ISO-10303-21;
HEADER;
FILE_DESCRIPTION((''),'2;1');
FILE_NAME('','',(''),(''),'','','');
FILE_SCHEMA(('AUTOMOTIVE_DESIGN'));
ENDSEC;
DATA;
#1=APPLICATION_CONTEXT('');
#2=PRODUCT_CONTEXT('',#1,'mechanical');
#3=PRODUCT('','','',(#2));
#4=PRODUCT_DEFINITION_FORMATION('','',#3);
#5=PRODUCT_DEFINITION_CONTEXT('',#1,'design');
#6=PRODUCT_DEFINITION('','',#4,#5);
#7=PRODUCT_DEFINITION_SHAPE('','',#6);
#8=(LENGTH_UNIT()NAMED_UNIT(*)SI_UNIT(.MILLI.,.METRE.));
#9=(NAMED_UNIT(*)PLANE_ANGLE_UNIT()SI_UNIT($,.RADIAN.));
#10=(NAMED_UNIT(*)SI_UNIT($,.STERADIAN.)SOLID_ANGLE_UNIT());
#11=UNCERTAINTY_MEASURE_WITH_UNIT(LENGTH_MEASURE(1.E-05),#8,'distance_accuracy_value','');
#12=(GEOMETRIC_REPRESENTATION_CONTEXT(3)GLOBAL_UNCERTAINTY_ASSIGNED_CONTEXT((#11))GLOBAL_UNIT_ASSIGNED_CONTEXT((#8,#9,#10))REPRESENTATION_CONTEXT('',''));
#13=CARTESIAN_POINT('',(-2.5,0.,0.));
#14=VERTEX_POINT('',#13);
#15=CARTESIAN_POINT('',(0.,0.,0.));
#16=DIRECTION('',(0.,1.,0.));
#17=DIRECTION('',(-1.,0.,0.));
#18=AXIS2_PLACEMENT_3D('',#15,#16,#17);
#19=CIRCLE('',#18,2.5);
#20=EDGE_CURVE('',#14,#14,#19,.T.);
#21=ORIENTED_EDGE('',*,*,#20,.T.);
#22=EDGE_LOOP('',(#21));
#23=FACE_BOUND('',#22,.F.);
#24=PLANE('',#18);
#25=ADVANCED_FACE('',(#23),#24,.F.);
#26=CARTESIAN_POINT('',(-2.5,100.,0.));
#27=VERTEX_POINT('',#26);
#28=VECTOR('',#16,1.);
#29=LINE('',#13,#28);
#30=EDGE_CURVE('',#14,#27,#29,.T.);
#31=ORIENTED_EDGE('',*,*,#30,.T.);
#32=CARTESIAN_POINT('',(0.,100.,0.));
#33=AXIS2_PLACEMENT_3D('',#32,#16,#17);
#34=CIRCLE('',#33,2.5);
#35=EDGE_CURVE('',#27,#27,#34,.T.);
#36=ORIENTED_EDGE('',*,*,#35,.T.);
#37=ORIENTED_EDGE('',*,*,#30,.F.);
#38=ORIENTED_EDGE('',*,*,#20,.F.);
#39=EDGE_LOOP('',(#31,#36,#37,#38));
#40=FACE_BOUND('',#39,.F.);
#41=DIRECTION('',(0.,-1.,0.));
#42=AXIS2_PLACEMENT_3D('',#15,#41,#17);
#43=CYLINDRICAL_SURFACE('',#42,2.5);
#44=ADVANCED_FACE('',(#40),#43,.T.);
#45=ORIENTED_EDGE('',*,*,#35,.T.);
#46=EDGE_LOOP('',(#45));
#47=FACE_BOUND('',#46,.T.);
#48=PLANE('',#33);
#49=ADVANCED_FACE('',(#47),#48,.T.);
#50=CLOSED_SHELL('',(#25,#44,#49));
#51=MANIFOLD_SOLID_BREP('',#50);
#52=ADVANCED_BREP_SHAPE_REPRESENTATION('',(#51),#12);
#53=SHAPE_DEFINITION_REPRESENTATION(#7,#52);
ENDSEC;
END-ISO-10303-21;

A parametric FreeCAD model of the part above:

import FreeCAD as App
import Part
import Sketcher

V = App.Vector
Q = App.Units.Quantity

doc = App.newDocument("Part")
body = doc.addObject("PartDesign::Body", "Body")

# Sketch on XZ plane
sketch1 = doc.addObject("Sketcher::SketchObject", "Sketch")
body.addObject(sketch1)
sketch1.AttachmentSupport = (doc.XZ_Plane, [""])
sketch1.MapMode = "FlatFace"
sketch1.addGeometry(Part.Circle(V(0, 0, 0), V(0, 0, 1), 2.5), False)
sketch1.addConstraint(Sketcher.Constraint("Coincident", 0, 3, -1, 1))
sketch1.addConstraint(Sketcher.Constraint("Diameter", 0, Q("5 mm")))
pad1 = doc.addObject("PartDesign::Pad", "Pad")
body.addObject(pad1)
pad1.Profile = sketch1
pad1.Length = 100
pad1.Reversed = True

doc.recompute()
